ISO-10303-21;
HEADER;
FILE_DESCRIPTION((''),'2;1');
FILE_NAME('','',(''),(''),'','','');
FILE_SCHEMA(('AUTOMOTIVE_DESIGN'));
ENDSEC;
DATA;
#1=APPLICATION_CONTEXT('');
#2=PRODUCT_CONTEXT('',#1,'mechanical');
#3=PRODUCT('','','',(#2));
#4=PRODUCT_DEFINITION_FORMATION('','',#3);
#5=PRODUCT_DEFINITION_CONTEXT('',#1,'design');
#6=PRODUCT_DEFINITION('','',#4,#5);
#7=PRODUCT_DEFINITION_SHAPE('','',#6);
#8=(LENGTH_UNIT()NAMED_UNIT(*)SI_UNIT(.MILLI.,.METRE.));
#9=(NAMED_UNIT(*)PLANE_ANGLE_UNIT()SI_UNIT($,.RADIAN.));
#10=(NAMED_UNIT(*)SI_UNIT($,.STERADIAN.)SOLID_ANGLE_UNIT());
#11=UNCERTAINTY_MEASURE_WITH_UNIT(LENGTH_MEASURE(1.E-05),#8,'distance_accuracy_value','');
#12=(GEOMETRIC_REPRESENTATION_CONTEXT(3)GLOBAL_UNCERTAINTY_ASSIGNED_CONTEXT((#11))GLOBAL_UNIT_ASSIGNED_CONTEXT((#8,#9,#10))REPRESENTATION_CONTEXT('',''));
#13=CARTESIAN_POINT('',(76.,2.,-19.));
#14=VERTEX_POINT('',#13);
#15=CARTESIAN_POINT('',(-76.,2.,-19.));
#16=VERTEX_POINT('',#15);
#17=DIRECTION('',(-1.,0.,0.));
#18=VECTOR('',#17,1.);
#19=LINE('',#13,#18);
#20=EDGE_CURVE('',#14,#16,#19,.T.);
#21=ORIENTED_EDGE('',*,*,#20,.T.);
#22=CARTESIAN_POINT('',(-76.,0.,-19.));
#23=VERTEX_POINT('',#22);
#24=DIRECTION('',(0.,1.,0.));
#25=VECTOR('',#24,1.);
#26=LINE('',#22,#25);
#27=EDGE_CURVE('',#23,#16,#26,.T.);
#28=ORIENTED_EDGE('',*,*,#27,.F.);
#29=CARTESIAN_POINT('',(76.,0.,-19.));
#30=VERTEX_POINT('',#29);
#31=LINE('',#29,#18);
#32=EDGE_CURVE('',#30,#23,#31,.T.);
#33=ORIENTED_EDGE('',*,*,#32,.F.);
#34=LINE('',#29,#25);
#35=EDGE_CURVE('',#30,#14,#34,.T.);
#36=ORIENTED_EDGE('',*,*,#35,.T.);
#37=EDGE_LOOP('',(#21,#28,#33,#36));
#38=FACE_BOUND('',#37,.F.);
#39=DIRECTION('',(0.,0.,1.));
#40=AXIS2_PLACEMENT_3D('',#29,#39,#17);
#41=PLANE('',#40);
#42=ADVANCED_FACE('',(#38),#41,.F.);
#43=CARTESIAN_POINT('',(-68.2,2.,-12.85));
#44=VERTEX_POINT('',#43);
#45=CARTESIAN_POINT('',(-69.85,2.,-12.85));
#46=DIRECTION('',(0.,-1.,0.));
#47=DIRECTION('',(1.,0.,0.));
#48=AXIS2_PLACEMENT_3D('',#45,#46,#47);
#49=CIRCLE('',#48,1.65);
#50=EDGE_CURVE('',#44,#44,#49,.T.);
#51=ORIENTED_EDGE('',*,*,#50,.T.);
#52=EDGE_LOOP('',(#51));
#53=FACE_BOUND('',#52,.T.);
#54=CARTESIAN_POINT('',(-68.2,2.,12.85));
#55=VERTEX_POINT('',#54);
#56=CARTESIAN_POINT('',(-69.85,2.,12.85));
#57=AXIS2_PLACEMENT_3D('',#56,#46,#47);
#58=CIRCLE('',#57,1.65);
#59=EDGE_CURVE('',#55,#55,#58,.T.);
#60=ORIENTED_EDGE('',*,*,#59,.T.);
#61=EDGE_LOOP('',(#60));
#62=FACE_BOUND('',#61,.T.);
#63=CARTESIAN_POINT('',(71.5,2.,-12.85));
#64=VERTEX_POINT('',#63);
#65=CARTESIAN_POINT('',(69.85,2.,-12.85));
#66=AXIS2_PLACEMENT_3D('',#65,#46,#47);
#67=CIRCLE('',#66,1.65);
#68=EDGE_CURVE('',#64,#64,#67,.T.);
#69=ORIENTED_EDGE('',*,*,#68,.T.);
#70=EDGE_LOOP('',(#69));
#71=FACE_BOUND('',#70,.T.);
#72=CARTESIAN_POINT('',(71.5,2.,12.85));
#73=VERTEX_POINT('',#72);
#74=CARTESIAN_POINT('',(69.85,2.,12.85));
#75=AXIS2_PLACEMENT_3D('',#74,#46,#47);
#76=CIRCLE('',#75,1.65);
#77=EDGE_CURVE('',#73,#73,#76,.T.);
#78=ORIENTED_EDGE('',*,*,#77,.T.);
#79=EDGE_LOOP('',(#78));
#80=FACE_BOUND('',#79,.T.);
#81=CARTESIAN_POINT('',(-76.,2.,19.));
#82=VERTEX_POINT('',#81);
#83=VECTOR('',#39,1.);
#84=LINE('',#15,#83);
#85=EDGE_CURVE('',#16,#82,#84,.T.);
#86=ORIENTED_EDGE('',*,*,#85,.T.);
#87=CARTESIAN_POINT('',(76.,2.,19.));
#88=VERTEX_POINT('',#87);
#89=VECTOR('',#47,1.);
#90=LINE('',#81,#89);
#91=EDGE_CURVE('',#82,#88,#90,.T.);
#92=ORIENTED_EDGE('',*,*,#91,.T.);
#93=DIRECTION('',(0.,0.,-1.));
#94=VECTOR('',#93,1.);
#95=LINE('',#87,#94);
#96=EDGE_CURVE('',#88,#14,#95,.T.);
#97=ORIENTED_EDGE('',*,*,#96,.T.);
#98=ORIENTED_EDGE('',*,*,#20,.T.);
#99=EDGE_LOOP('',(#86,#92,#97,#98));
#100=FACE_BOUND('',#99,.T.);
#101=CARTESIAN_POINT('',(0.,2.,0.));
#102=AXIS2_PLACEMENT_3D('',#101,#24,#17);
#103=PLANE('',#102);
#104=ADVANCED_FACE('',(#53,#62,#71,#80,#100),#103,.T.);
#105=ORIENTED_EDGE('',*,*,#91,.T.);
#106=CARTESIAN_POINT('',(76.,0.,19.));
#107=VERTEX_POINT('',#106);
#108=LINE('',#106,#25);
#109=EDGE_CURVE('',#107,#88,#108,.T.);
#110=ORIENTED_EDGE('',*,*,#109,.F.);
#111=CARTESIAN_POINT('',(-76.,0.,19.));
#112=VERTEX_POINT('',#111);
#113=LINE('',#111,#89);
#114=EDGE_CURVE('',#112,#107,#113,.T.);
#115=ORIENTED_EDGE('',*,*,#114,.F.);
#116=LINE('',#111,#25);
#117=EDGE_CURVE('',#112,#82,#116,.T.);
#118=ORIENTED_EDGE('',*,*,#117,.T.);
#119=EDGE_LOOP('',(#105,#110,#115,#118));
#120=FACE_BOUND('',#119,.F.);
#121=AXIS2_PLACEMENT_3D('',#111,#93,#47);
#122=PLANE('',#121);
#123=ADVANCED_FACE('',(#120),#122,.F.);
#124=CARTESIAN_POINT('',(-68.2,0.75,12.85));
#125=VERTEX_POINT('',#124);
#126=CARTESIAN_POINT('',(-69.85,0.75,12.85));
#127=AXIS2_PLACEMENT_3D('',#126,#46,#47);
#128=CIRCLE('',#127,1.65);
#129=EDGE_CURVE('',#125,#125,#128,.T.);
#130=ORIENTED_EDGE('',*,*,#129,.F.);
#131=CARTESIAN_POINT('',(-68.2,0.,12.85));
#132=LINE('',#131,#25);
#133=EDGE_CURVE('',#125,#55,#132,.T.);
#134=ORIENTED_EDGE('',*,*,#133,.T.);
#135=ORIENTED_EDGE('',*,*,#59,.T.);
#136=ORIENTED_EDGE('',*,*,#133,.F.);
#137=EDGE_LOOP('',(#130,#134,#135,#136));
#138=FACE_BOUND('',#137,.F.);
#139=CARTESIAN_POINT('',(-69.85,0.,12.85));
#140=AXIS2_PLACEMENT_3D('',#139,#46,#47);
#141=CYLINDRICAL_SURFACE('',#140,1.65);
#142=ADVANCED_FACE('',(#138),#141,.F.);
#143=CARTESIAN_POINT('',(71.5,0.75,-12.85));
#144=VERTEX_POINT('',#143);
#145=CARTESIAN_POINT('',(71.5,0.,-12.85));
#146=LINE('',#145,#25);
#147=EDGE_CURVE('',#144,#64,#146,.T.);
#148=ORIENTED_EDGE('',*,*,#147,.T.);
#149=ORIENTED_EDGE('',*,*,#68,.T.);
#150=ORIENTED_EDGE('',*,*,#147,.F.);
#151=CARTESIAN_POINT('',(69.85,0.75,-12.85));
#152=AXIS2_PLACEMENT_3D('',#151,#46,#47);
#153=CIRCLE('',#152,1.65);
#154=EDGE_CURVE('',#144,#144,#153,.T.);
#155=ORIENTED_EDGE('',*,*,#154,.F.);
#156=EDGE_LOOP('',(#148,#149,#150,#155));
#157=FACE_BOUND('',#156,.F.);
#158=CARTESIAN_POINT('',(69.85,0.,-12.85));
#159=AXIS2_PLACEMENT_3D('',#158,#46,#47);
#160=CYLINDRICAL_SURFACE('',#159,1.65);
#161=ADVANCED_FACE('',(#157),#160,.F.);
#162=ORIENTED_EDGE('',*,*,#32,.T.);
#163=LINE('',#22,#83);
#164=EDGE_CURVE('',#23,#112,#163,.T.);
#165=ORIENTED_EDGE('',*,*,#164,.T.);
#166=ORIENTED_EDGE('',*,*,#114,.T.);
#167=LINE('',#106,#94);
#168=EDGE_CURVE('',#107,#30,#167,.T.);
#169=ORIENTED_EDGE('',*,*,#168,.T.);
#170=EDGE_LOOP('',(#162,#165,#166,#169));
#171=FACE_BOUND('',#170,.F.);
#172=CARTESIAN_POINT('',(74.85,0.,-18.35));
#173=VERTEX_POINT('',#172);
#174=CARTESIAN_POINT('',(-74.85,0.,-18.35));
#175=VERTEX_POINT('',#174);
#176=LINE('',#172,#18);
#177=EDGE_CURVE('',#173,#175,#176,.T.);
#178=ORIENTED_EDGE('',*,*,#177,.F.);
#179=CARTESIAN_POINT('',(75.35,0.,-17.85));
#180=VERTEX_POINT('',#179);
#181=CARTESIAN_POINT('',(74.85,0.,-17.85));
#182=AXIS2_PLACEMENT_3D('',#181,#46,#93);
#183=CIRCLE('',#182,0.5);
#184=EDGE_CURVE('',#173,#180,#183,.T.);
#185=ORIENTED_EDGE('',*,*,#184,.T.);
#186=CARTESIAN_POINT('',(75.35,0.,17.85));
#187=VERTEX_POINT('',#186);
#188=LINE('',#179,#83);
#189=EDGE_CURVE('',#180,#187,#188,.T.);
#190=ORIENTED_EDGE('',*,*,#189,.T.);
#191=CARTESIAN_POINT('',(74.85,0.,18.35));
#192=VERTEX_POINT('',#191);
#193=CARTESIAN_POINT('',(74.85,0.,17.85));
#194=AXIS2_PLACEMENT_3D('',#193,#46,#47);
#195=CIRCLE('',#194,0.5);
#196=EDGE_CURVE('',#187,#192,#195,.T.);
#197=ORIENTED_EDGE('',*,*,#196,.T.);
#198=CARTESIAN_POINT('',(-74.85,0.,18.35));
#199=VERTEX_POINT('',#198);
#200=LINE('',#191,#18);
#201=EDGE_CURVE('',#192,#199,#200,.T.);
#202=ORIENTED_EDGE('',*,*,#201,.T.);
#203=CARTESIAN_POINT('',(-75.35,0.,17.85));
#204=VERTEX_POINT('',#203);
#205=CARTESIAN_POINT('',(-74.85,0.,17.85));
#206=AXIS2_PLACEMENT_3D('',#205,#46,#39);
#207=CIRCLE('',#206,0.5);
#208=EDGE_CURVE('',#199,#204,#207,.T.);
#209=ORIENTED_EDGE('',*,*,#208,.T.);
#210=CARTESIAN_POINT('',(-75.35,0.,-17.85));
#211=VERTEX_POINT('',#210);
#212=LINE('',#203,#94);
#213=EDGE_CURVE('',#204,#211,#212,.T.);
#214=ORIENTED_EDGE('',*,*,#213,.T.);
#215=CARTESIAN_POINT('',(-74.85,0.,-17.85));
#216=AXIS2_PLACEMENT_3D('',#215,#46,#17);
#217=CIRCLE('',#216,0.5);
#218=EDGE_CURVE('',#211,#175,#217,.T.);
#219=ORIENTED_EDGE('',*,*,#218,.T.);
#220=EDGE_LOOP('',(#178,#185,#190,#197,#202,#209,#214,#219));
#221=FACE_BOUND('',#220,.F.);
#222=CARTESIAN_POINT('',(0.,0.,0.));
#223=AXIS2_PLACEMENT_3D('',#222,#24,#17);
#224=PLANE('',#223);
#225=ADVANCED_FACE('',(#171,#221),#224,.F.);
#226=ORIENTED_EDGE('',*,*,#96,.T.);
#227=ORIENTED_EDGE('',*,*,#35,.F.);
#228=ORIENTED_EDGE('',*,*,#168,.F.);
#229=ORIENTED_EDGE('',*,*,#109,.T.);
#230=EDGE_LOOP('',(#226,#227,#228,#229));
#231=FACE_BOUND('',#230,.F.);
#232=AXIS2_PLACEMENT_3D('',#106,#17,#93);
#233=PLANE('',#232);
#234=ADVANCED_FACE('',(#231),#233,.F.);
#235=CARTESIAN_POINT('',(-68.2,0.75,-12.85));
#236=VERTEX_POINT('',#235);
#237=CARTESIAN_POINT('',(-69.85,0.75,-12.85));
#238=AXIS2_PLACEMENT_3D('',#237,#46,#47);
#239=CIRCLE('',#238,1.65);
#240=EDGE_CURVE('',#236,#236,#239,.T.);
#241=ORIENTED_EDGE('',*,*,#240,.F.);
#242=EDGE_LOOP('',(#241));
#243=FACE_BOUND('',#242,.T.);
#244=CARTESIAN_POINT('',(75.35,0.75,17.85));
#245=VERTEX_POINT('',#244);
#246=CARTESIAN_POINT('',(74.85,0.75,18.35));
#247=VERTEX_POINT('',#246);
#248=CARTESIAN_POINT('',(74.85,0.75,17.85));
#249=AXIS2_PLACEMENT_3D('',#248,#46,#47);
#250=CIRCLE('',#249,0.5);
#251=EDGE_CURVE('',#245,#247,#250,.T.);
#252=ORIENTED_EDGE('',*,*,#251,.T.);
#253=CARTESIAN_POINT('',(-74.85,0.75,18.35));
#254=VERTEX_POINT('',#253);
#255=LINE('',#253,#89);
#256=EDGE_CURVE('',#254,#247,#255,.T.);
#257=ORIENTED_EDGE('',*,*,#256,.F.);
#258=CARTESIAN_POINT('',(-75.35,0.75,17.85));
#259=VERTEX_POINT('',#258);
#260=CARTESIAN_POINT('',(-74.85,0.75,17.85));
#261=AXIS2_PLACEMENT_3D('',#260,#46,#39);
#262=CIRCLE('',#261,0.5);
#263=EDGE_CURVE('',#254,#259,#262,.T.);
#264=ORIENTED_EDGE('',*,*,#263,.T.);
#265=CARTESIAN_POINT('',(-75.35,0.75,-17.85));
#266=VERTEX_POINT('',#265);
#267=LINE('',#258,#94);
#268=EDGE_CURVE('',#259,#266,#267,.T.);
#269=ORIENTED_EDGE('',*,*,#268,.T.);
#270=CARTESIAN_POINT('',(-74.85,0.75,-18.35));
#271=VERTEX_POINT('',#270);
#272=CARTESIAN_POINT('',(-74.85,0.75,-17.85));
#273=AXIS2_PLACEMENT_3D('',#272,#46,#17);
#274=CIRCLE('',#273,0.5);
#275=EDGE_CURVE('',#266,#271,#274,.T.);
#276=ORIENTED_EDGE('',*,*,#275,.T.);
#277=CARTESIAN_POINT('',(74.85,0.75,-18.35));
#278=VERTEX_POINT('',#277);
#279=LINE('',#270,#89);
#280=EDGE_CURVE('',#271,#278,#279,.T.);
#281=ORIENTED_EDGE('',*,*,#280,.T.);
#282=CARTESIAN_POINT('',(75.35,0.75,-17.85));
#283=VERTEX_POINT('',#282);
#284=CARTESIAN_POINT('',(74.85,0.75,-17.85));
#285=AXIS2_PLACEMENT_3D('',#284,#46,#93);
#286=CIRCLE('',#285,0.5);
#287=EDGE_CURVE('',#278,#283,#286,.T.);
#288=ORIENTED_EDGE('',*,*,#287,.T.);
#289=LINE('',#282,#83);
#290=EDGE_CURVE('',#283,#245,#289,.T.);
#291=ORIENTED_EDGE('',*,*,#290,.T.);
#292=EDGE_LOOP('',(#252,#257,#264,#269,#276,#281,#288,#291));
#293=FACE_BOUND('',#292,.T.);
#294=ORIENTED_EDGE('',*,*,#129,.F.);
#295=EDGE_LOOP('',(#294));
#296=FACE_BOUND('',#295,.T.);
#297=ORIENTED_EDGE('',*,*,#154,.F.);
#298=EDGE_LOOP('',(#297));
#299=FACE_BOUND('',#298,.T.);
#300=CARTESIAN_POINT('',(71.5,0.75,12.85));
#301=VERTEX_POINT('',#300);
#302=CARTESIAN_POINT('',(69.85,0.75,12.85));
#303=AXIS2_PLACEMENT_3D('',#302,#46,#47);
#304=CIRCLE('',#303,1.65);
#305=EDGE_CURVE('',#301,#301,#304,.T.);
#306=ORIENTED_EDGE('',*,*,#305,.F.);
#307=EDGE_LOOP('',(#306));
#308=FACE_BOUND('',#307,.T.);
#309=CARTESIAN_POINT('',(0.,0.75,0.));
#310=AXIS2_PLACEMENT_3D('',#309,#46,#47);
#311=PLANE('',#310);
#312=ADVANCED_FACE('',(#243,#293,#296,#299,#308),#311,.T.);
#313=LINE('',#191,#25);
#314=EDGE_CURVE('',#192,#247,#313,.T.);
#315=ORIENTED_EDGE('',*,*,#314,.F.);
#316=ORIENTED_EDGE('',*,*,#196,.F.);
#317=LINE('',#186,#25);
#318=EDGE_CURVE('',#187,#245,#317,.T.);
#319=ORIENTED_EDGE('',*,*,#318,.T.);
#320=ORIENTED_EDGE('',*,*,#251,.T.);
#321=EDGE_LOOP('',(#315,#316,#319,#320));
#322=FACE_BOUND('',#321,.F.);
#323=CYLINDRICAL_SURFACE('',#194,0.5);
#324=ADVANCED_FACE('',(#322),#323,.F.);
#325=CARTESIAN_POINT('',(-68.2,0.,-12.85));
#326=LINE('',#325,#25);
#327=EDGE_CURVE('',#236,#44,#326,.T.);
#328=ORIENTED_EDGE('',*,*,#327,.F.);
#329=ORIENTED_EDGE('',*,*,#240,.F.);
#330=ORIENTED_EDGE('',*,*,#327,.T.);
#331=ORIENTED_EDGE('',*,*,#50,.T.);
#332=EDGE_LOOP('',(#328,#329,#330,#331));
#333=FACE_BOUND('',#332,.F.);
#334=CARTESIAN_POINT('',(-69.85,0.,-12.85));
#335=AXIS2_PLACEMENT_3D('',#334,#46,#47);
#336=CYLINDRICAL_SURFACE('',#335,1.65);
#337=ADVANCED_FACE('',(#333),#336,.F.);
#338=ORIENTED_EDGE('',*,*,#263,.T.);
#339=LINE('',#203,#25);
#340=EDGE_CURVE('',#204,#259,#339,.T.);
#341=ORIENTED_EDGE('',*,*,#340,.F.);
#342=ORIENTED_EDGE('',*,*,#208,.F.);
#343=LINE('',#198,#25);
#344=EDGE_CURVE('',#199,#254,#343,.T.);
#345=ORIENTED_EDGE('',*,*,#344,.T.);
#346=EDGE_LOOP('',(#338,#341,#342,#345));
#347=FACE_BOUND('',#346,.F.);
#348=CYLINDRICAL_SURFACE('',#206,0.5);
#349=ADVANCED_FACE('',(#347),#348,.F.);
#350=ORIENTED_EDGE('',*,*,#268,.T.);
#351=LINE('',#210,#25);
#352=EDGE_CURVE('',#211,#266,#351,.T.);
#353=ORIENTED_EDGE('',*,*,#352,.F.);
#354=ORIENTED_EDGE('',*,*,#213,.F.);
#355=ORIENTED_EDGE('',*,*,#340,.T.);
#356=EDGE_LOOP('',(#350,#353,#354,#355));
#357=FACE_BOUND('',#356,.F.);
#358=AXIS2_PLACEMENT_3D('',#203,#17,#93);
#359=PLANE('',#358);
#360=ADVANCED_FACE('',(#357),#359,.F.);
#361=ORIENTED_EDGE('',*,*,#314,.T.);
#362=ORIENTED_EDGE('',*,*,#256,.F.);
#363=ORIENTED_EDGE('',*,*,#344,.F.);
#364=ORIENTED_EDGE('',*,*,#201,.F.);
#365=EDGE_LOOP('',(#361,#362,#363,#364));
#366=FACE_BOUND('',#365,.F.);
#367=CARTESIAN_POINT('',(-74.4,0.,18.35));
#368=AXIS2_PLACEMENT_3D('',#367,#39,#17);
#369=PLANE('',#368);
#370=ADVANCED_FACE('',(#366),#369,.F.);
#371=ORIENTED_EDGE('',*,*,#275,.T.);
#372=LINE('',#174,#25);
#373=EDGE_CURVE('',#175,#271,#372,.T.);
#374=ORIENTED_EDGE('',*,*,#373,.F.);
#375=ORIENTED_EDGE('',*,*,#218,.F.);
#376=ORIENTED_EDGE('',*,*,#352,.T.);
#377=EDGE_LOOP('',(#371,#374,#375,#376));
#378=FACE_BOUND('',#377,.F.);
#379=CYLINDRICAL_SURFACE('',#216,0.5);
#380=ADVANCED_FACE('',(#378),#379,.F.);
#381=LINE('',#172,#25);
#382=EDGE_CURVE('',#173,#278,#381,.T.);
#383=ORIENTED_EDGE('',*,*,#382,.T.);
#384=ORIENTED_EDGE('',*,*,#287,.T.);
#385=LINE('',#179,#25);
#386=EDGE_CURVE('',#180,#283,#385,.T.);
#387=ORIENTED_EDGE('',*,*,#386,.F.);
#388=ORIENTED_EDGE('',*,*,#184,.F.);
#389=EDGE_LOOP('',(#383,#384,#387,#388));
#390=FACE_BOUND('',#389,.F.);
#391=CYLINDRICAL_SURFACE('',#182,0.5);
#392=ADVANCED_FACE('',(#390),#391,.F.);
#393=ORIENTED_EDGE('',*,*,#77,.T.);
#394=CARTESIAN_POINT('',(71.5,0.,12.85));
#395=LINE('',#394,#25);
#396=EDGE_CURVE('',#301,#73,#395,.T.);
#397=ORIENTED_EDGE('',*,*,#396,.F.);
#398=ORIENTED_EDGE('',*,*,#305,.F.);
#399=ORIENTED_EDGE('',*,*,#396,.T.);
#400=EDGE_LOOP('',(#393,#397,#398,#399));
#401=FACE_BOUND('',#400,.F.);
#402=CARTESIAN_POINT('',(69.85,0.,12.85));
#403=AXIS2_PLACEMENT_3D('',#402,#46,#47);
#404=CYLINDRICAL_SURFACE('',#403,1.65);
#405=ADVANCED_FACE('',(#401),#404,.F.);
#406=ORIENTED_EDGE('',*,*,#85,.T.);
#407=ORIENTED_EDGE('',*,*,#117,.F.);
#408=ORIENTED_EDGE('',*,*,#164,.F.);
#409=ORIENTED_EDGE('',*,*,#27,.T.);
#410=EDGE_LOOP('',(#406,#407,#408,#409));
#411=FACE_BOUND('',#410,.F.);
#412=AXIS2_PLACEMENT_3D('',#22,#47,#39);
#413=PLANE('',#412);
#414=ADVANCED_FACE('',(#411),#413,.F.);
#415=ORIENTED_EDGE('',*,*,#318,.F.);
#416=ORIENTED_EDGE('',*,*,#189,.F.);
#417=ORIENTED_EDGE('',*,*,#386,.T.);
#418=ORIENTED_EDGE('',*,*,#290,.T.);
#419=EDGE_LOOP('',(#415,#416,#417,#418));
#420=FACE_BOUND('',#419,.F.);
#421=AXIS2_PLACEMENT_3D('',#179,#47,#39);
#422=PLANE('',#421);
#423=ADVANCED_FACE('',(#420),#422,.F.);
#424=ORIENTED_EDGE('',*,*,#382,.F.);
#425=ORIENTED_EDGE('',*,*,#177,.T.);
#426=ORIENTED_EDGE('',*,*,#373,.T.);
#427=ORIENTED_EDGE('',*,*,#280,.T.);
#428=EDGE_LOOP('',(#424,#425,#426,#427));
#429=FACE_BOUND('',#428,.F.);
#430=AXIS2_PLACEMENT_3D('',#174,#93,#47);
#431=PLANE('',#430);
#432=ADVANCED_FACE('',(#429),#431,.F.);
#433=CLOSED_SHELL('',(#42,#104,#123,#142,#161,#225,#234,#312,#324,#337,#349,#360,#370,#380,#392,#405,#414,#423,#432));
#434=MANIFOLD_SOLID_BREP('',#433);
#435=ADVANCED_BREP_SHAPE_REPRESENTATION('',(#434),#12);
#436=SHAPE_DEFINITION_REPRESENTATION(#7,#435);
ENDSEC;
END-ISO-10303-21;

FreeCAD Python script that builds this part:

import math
import FreeCAD as App
import Part
import Sketcher

V = App.Vector
Q = App.Units.Quantity

doc = App.newDocument("Part")
params = doc.addObject("Spreadsheet::Sheet", "Params")
for row, (alias, value) in enumerate([
    ("sketch1_width", "152 mm"),
    ("sketch1_height", "38 mm"),
    ("pad1_length", "2 mm"),
    ("sketch2_radius", "0.5 mm"),
    ("sketch2_width", "149.7 mm"),
    ("sketch2_height", "35.7 mm"),
    ("pocket1_length", "0.75 mm"),
    ("sketch3_diameter", "3.3 mm"),
    ("pocket2_length", "3 mm"),
], start=1):
    params.set(f"A{row}", alias)
    params.set(f"B{row}", "=" + value)
    params.setAlias(f"B{row}", alias)

body = doc.addObject("PartDesign::Body", "Body")

# Sketch on XZ plane
sketch1 = doc.addObject("Sketcher::SketchObject", "Sketch")
body.addObject(sketch1)
sketch1.AttachmentSupport = (doc.XZ_Plane, [""])
sketch1.MapMode = "FlatFace"
sketch1.addGeometry([
    Part.LineSegment(V(-76, -19, 0), V(-76, 19, 0)),
    Part.LineSegment(V(-76, 19, 0), V(76, 19, 0)),
    Part.LineSegment(V(76, 19, 0), V(76, -19, 0)),
    Part.LineSegment(V(76, -19, 0), V(-76, -19, 0)),
], False)
sketch1.addConstraint([
    Sketcher.Constraint("Coincident", 0, 2, 1, 1),
    Sketcher.Constraint("Coincident", 1, 2, 2, 1),
    Sketcher.Constraint("Coincident", 2, 2, 3, 1),
    Sketcher.Constraint("Coincident", 3, 2, 0, 1),
    Sketcher.Constraint("Vertical", 0),
    Sketcher.Constraint("Horizontal", 1),
    Sketcher.Constraint("Vertical", 2),
    Sketcher.Constraint("Horizontal", 3),
    Sketcher.Constraint("Symmetric", 0, 2, 2, 2, -1, 1),
    Sketcher.Constraint("DistanceX", 1, 1, 1, 2, Q("152 mm")),
    Sketcher.Constraint("DistanceY", 0, 1, 0, 2, Q("38 mm")),
])
sketch1.setExpression("Constraints[9]", "Params.sketch1_width")
sketch1.setExpression("Constraints[10]", "Params.sketch1_height")
pad1 = doc.addObject("PartDesign::Pad", "Pad")
body.addObject(pad1)
pad1.Profile = sketch1
pad1.setExpression("Length", "Params.pad1_length")
pad1.Reversed = True

# Sketch on XZ plane
sketch2 = doc.addObject("Sketcher::SketchObject", "Sketch001")
body.addObject(sketch2)
sketch2.AttachmentSupport = (doc.XZ_Plane, [""])
sketch2.MapMode = "FlatFace"
sketch2.addGeometry([
    Part.ArcOfCircle(Part.Circle(V(-74.8, -17.9, 0), V(0, 0, 1), 0.5), math.radians(180), math.radians(270)),  # 0
    Part.LineSegment(V(-74.8, -18.4, 0), V(74.8, -18.4, 0)),  # 1
    Part.ArcOfCircle(Part.Circle(V(74.8, -17.9, 0), V(0, 0, 1), 0.5), math.radians(-90), math.radians(0)),  # 2
    Part.LineSegment(V(75.3, -17.9, 0), V(75.3, 17.9, 0)),  # 3
    Part.ArcOfCircle(Part.Circle(V(74.8, 17.9, 0), V(0, 0, 1), 0.5), math.radians(0), math.radians(90)),  # 4
    Part.LineSegment(V(74.8, 18.4, 0), V(-74.8, 18.4, 0)),  # 5
    Part.ArcOfCircle(Part.Circle(V(-74.8, 17.9, 0), V(0, 0, 1), 0.5), math.radians(90), math.radians(180)),  # 6
    Part.LineSegment(V(-75.3, 17.9, 0), V(-75.3, -17.9, 0)),  # 7
], False)
sketch2.addConstraint([
    Sketcher.Constraint("Tangent", 0, 2, 1, 1),
    Sketcher.Constraint("Tangent", 1, 2, 2, 1),
    Sketcher.Constraint("Tangent", 2, 2, 3, 1),
    Sketcher.Constraint("Tangent", 3, 2, 4, 1),
    Sketcher.Constraint("Tangent", 4, 2, 5, 1),
    Sketcher.Constraint("Tangent", 5, 2, 6, 1),
    Sketcher.Constraint("Tangent", 6, 2, 7, 1),
    Sketcher.Constraint("Tangent", 7, 2, 0, 1),
    Sketcher.Constraint("Horizontal", 1),
    Sketcher.Constraint("Vertical", 3),
    Sketcher.Constraint("Horizontal", 5),
    Sketcher.Constraint("Vertical", 7),
    Sketcher.Constraint("Equal", 0, 2),
    Sketcher.Constraint("Equal", 2, 4),
    Sketcher.Constraint("Equal", 4, 6),
    Sketcher.Constraint("Symmetric", 0, 3, 4, 3, -1, 1),
    Sketcher.Constraint("Radius", 0, Q("0.5 mm")),
    Sketcher.Constraint("DistanceX", 1, 1, 1, 2, Q("149.7 mm")),
    Sketcher.Constraint("DistanceY", 3, 1, 3, 2, Q("35.7 mm")),
])
sketch2.setExpression("Constraints[16]", "Params.sketch2_radius")
sketch2.setExpression("Constraints[17]", "Params.sketch2_width")
sketch2.setExpression("Constraints[18]", "Params.sketch2_height")
pocket1 = doc.addObject("PartDesign::Pocket", "Pocket")
body.addObject(pocket1)
pocket1.Profile = sketch2
pocket1.setExpression("Length", "Params.pocket1_length")

# Sketch on XZ plane
sketch3 = doc.addObject("Sketcher::SketchObject", "Sketch002")
body.addObject(sketch3)
sketch3.AttachmentSupport = (doc.XZ_Plane, [""])
sketch3.MapMode = "FlatFace"
sketch3.addGeometry([
    Part.Circle(V(-69.8, 12.8, 0), V(0, 0, 1), 1.6),
    Part.Circle(V(-69.8, -12.8, 0), V(0, 0, 1), 1.6),
    Part.Circle(V(69.8, 12.8, 0), V(0, 0, 1), 1.6),
    Part.Circle(V(69.8, -12.8, 0), V(0, 0, 1), 1.6),
], False)
sketch3.addConstraint([
    Sketcher.Constraint("Equal", 0, 1),
    Sketcher.Constraint("Equal", 1, 2),
    Sketcher.Constraint("Equal", 2, 3),
    Sketcher.Constraint("Symmetric", 1, 3, 2, 3, -1, 1),
    Sketcher.Constraint("Symmetric", 0, 3, 3, 3, -1, 1),
    Sketcher.Constraint("Symmetric", 0, 3, 2, 3, -2),
    Sketcher.Constraint("Diameter", 0, Q("3.3 mm")),
    Sketcher.Constraint("DistanceY", 1, 3, 0, 3, Q("25.7 mm")),
    Sketcher.Constraint("DistanceX", 0, 3, 2, 3, Q("139.7 mm")),
])
sketch3.setExpression("Constraints[6]", "Params.sketch3_diameter")
pocket2 = doc.addObject("PartDesign::Pocket", "Pocket001")
body.addObject(pocket2)
pocket2.Profile = sketch3
pocket2.setExpression("Length", "Params.pocket2_length")

doc.recompute()
